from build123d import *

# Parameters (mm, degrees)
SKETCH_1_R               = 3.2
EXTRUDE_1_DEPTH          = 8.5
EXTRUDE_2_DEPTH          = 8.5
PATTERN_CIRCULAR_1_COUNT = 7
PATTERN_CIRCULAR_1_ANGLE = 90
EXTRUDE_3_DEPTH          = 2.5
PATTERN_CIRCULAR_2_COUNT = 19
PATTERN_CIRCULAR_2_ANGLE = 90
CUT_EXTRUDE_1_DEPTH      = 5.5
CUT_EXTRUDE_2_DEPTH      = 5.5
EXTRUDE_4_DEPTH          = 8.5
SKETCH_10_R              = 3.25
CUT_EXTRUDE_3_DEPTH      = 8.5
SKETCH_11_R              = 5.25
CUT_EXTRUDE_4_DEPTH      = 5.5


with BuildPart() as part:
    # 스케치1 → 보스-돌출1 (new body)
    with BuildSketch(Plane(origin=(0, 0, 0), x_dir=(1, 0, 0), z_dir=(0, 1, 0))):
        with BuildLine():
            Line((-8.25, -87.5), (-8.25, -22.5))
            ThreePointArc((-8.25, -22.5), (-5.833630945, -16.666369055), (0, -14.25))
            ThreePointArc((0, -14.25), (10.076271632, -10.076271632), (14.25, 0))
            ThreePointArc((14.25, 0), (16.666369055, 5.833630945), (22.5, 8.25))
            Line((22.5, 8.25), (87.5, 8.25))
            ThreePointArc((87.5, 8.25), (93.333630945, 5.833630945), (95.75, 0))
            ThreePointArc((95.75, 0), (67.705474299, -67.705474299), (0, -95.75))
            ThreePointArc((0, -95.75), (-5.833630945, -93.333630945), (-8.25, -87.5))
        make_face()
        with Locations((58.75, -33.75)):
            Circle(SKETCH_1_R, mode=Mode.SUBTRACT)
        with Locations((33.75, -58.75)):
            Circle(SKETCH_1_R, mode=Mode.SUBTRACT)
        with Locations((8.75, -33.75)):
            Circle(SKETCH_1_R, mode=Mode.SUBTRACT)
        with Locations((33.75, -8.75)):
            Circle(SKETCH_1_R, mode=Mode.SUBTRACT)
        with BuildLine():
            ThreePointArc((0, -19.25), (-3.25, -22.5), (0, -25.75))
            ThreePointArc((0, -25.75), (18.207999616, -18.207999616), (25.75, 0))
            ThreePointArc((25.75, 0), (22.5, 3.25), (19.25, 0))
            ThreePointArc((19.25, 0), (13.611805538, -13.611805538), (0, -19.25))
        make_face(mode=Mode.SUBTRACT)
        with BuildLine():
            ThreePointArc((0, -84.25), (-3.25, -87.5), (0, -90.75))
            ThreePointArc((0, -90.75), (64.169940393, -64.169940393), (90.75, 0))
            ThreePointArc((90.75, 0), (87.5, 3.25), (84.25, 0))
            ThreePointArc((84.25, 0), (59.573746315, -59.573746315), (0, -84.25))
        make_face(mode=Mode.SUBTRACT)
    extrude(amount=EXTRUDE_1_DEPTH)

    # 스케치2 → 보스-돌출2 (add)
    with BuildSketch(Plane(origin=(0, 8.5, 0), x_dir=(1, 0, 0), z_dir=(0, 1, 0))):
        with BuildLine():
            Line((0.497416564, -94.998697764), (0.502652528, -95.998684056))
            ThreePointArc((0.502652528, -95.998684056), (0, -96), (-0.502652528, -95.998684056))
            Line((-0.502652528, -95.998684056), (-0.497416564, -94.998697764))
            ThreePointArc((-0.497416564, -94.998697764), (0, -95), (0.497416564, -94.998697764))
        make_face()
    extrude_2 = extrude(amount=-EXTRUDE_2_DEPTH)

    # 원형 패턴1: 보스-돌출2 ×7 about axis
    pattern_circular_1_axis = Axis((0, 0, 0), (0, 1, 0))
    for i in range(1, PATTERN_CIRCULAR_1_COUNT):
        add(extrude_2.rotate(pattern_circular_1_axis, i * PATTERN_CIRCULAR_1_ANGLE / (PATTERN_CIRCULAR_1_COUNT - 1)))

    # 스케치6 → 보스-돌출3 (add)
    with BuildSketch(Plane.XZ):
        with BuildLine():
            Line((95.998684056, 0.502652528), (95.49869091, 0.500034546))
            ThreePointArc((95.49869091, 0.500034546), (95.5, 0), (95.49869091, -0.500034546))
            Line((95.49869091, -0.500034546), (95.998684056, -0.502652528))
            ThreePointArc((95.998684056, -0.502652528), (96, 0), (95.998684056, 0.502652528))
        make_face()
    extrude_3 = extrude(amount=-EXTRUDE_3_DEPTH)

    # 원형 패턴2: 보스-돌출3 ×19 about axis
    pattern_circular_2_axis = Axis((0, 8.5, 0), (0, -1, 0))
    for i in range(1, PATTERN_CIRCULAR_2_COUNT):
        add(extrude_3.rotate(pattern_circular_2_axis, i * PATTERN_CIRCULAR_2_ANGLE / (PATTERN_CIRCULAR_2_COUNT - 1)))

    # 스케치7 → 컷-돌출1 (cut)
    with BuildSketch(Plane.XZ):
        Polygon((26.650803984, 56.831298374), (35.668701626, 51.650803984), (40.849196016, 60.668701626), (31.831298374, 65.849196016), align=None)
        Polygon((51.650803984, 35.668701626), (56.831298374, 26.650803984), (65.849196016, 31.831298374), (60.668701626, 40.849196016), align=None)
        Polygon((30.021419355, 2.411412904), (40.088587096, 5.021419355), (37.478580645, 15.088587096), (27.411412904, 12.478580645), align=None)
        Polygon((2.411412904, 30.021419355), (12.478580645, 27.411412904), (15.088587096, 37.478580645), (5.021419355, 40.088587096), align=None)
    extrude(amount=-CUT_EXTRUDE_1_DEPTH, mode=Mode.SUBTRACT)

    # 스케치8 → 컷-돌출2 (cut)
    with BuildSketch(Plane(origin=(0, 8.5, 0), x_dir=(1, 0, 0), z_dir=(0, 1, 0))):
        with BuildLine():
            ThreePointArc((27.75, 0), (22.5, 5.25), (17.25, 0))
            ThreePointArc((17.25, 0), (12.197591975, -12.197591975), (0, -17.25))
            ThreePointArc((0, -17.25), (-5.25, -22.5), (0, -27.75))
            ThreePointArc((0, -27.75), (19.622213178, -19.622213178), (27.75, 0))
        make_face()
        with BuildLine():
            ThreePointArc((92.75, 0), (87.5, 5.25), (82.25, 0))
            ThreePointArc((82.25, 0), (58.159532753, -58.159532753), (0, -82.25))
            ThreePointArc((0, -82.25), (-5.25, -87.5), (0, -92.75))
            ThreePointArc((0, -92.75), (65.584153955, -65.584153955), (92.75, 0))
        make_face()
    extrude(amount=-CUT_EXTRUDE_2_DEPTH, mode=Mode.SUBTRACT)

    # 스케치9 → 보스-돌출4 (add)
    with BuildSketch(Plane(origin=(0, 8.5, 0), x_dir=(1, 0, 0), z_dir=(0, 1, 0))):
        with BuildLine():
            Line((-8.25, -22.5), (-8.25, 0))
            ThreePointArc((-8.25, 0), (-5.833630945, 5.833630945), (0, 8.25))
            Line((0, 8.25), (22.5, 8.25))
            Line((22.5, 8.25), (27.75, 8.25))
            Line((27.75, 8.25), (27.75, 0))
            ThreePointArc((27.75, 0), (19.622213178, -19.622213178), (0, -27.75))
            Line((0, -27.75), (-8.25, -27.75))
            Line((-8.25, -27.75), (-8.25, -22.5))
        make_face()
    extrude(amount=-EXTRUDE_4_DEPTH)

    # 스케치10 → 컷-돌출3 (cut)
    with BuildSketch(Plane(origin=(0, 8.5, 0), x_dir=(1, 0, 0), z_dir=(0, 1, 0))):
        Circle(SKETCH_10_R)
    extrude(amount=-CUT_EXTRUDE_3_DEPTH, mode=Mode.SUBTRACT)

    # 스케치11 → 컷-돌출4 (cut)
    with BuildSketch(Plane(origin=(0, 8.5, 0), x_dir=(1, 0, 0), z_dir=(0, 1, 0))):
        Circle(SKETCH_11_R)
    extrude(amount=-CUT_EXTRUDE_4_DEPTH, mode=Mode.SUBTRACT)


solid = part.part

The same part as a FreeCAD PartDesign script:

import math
import FreeCAD as App
import Part
import Sketcher

V = App.Vector
Q = App.Units.Quantity


def add_polygon(sketch, points):
    """Adds a closed chain of lines whose ends are joined by coincident constraints."""
    first, n = sketch.GeometryCount, len(points)
    for a, b in zip(points, points[1:] + points[:1]):
        sketch.addGeometry(Part.LineSegment(App.Vector(*a, 0), App.Vector(*b, 0)), False)
    for i in range(n):
        sketch.addConstraint(Sketcher.Constraint("Coincident", first + i, 2, first + (i + 1) % n, 1))

doc = App.newDocument("Part")
params = doc.addObject("Spreadsheet::Sheet", "Params")
for row, (alias, value) in enumerate([
    ("sketch1_diameter", "6.4 mm"),
    ("sketch1_width", "65 mm"),
    ("sketch1_radius", "8.25 mm"),
    ("sketch1_radius2", "95.75 mm"),
    ("sketch1_radius3", "84.25 mm"),
    ("pad1_length", "8.5 mm"),
    ("sketch2_length", "1 mm"),
    ("pad2_length", "8.5 mm"),
    ("sketch3_length", "0.5 mm"),
    ("pad3_length", "2.5 mm"),
    ("sketch4_length", "10.4 mm"),
    ("pocket1_length", "5.5 mm"),
    ("sketch5_radius", "5.25 mm"),
    ("sketch5_radius2", "17.25 mm"),
    ("sketch5_radius3", "82.25 mm"),
    ("pocket2_length", "5.5 mm"),
    ("sketch6_radius", "8.25 mm"),
    ("sketch6_radius2", "27.75 mm"),
    ("pad4_length", "8.5 mm"),
    ("sketch7_diameter", "6.5 mm"),
    ("pocket3_length", "8.5 mm"),
    ("sketch8_diameter", "10.5 mm"),
    ("pocket4_length", "5.5 mm"),
], start=1):
    params.set(f"A{row}", alias)
    params.set(f"B{row}", "=" + value)
    params.setAlias(f"B{row}", alias)

body = doc.addObject("PartDesign::Body", "Body")

# Sketch on XZ plane
sketch1 = body.newObject("Sketcher::SketchObject", "Sketch")
sketch1.AttachmentSupport = (doc.getObject("XZ_Plane"), [""])
sketch1.MapMode = "FlatFace"
sketch1.addGeometry(Part.LineSegment(V(-8.25, 22.5, 0), V(-8.25, 87.5, 0)), False)
sketch1.addGeometry(Part.ArcOfCircle(Part.Circle(V(0, 87.5, 0), V(0, 0, 1), 8.25), math.radians(90), math.radians(180)), False)
sketch1.addGeometry(Part.ArcOfCircle(Part.Circle(V(0, 0, 0), V(0, 0, 1), 95.75), math.radians(0), math.radians(90)), False)
sketch1.addGeometry(Part.ArcOfCircle(Part.Circle(V(87.5, 0, 0), V(0, 0, 1), 8.25), math.radians(-90), math.radians(0)), False)
sketch1.addGeometry(Part.LineSegment(V(87.5, -8.25, 0), V(22.5, -8.25, 0)), False)
sketch1.addGeometry(Part.ArcOfCircle(Part.Circle(V(22.5, 0, 0), V(0, 0, 1), 8.25), math.radians(180), math.radians(270)), False)
sketch1.addGeometry(Part.ArcOfCircle(Part.Circle(V(0, 0, 0), V(0, 0, 1), 14.25), math.radians(0), math.radians(90)), False)
sketch1.addGeometry(Part.ArcOfCircle(Part.Circle(V(0, 22.5, 0), V(0, 0, 1), 8.25), math.radians(180), math.radians(270)), False)
sketch1.addGeometry(Part.Circle(V(33.75, 58.75, 0), V(0, 0, 1), 3.2), False)
sketch1.addGeometry(Part.Circle(V(58.75, 33.75, 0), V(0, 0, 1), 3.2), False)
sketch1.addGeometry(Part.ArcOfCircle(Part.Circle(V(0, 0, 0), V(0, 0, 1), 84.25), math.radians(0), math.radians(90)), False)
sketch1.addGeometry(Part.ArcOfCircle(Part.Circle(V(87.5, 0, 0), V(0, 0, 1), 3.25), math.radians(180), math.radians(360)), False)
sketch1.addGeometry(Part.ArcOfCircle(Part.Circle(V(0, 0, 0), V(0, 0, 1), 90.75), math.radians(0), math.radians(90)), False)
sketch1.addGeometry(Part.ArcOfCircle(Part.Circle(V(0, 87.5, 0), V(0, 0, 1), 3.25), math.radians(90), math.radians(270)), False)
sketch1.addGeometry(Part.Circle(V(8.75, 33.75, 0), V(0, 0, 1), 3.2), False)
sketch1.addGeometry(Part.Circle(V(33.75, 8.75, 0), V(0, 0, 1), 3.2), False)
sketch1.addGeometry(Part.ArcOfCircle(Part.Circle(V(0, 0, 0), V(0, 0, 1), 19.25), math.radians(0), math.radians(90)), False)
sketch1.addGeometry(Part.ArcOfCircle(Part.Circle(V(22.5, 0, 0), V(0, 0, 1), 3.25), math.radians(180), math.radians(360)), False)
sketch1.addGeometry(Part.ArcOfCircle(Part.Circle(V(0, 0, 0), V(0, 0, 1), 25.75), math.radians(0), math.radians(90)), False)
sketch1.addGeometry(Part.ArcOfCircle(Part.Circle(V(0, 22.5, 0), V(0, 0, 1), 3.25), math.radians(90), math.radians(270)), False)
sketch1.addConstraint(Sketcher.Constraint("Tangent", 0, 2, 1, 2))
sketch1.addConstraint(Sketcher.Constraint("Tangent", 1, 1, 2, 2))
sketch1.addConstraint(Sketcher.Constraint("Tangent", 2, 1, 3, 2))
sketch1.addConstraint(Sketcher.Constraint("Tangent", 3, 1, 4, 1))
sketch1.addConstraint(Sketcher.Constraint("Tangent", 4, 2, 5, 2))
sketch1.addConstraint(Sketcher.Constraint("Tangent", 5, 1, 6, 1))
sketch1.addConstraint(Sketcher.Constraint("Tangent", 6, 2, 7, 2))
sketch1.addConstraint(Sketcher.Constraint("Tangent", 7, 1, 0, 1))
sketch1.addConstraint(Sketcher.Constraint("Tangent", 10, 1, 11, 1))
sketch1.addConstraint(Sketcher.Constraint("Tangent", 11, 2, 12, 1))
sketch1.addConstraint(Sketcher.Constraint("Tangent", 12, 2, 13, 1))
sketch1.addConstraint(Sketcher.Constraint("Tangent", 13, 2, 10, 2))
sketch1.addConstraint(Sketcher.Constraint("Tangent", 16, 1, 17, 1))
sketch1.addConstraint(Sketcher.Constraint("Tangent", 17, 2, 18, 1))
sketch1.addConstraint(Sketcher.Constraint("Tangent", 18, 2, 19, 1))
sketch1.addConstraint(Sketcher.Constraint("Tangent", 19, 2, 16, 2))
sketch1.addConstraint(Sketcher.Constraint("Vertical", 0))
sketch1.addConstraint(Sketcher.Constraint("Horizontal", 4))
sketch1.addConstraint(Sketcher.Constraint("Coincident", 2, 3, -1, 1))
sketch1.addConstraint(Sketcher.Constraint("Coincident", 6, 3, -1, 1))
sketch1.addConstraint(Sketcher.Constraint("Coincident", 10, 3, -1, 1))
sketch1.addConstraint(Sketcher.Constraint("Coincident", 12, 3, -1, 1))
sketch1.addConstraint(Sketcher.Constraint("Coincident", 16, 3, -1, 1))
sketch1.addConstraint(Sketcher.Constraint("Coincident", 18, 3, -1, 1))
sketch1.addConstraint(Sketcher.Constraint("Coincident", 11, 3, 3, 3))
sketch1.addConstraint(Sketcher.Constraint("Coincident", 13, 3, 1, 3))
sketch1.addConstraint(Sketcher.Constraint("Coincident", 17, 3, 5, 3))
sketch1.addConstraint(Sketcher.Constraint("Coincident", 19, 3, 7, 3))
sketch1.addConstraint(Sketcher.Constraint("Equal", 3, 5))
sketch1.addConstraint(Sketcher.Constraint("Equal", 8, 9))
sketch1.addConstraint(Sketcher.Constraint("Equal", 9, 14))
sketch1.addConstraint(Sketcher.Constraint("Equal", 14, 15))
sketch1.addConstraint(Sketcher.Constraint("Equal", 13, 17))
sketch1.addConstraint(Sketcher.Constraint("PointOnObject", 1, 3, -2))
sketch1.addConstraint(Sketcher.Constraint("PointOnObject", 3, 3, -1))
sketch1.addConstraint(Sketcher.Constraint("Horizontal", 9, 3, 14, 3))
sketch1.addConstraint(Sketcher.Constraint("Vertical", 8, 3, 15, 3))
sketch1.addConstraint(Sketcher.Constraint("Diameter", 8, Q("6.4 mm")))
sketch1.addConstraint(Sketcher.Constraint("DistanceX", 4, 2, 4, 1, Q("65 mm")))
sketch1.addConstraint(Sketcher.Constraint("Radius", 1, Q("8.25 mm")))
sketch1.addConstraint(Sketcher.Constraint("Radius", 2, Q("95.75 mm")))
sketch1.addConstraint(Sketcher.Constraint("Radius", 10, Q("84.25 mm")))
sketch1.addConstraint(Sketcher.Constraint("DistanceX", 8, 3, 9, 3, Q("25 mm")))
sketch1.addConstraint(Sketcher.Constraint("DistanceY", 9, 3, 8, 3, Q("25 mm")))
sketch1.addConstraint(Sketcher.Constraint("DistanceX", 0, 2, 8, 3, Q("42 mm")))
sketch1.addConstraint(Sketcher.Constraint("DistanceX", 0, 2, 14, 3, Q("17 mm")))
sketch1.addConstraint(Sketcher.Constraint("DistanceY", 8, 3, 1, 1, Q("37 mm")))
sketch1.addConstraint(Sketcher.Constraint("DistanceY", 3, 1, 15, 3, Q("17 mm")))
sketch1.setExpression("Constraints[37]", "Params.sketch1_diameter")
sketch1.setExpression("Constraints[38]", "Params.sketch1_width")
sketch1.setExpression("Constraints[39]", "Params.sketch1_radius")
sketch1.setExpression("Constraints[40]", "Params.sketch1_radius2")
sketch1.setExpression("Constraints[41]", "Params.sketch1_radius3")
pad1 = body.newObject("PartDesign::Pad", "Pad")
pad1.Profile = sketch1
pad1.setExpression("Length", "Params.pad1_length")
pad1.Reversed = True

# Sketch on XZ plane
sketch2 = body.newObject("Sketcher::SketchObject", "Sketch001")
sketch2.AttachmentSupport = (doc.getObject("XZ_Plane"), [""])
sketch2.MapMode = "FlatFace"
sketch2.AttachmentOffset = App.Placement(V(0, 0, -8.5), App.Rotation())
sketch2.addGeometry(Part.LineSegment(V(0.502653, 95.998684, 0), V(0.497417, 94.998698, 0)), False)
sketch2.addGeometry(Part.ArcOfCircle(Part.Circle(V(0, -0.000036, 0), V(0, 0, 1), 95.000036), math.radians(89.7), math.radians(90.3)), False)
sketch2.addGeometry(Part.LineSegment(V(-0.497417, 94.998698, 0), V(-0.502653, 95.998684, 0)), False)
sketch2.addGeometry(Part.ArcOfCircle(Part.Circle(V(0, -0.000018, 0), V(0, 0, 1), 96.000018), math.radians(89.7), math.radians(90.3)), False)
sketch2.addConstraint(Sketcher.Constraint("Coincident", 0, 2, 1, 1))
sketch2.addConstraint(Sketcher.Constraint("Coincident", 1, 2, 2, 1))
sketch2.addConstraint(Sketcher.Constraint("Coincident", 2, 2, 3, 2))
sketch2.addConstraint(Sketcher.Constraint("Coincident", 3, 1, 0, 1))
sketch2.addConstraint(Sketcher.Constraint("Symmetric", 0, 2, 1, 2, -2))
sketch2.addConstraint(Sketcher.Constraint("Symmetric", 2, 2, 3, 1, -2))
sketch2.addConstraint(Sketcher.Constraint("Distance", 0, Q("1 mm")))
sketch2.addConstraint(Sketcher.Constraint("Angle", 0, Q("-90.3 deg")))
sketch2.addConstraint(Sketcher.Constraint("Radius", 3, Q("96.000018 mm")))
sketch2.addConstraint(Sketcher.Constraint("Radius", 1, Q("95.000036 mm")))
sketch2.addConstraint(Sketcher.Constraint("DistanceX", 2, 2, 0, 2, Q("1.000069 mm")))
sketch2.addConstraint(Sketcher.Constraint("DistanceY", -1, 1, 0, 2, Q("94.998698 mm")))
sketch2.setExpression("Constraints[6]", "Params.sketch2_length")
pad2 = body.newObject("PartDesign::Pad", "Pad001")
pad2.Profile = sketch2
pad2.setExpression("Length", "Params.pad2_length")
doc.recompute()

polarpattern = body.newObject("PartDesign::PolarPattern", "PolarPattern")
polarpattern.Originals = [pad2]
polarpattern.Axis = (doc.getObject("Y_Axis"), [""])
polarpattern.Angle = 90
polarpattern.Occurrences = 7
body.Tip = polarpattern

# Sketch on XZ plane
sketch3 = body.newObject("Sketcher::SketchObject", "Sketch002")
sketch3.AttachmentSupport = (doc.getObject("XZ_Plane"), [""])
sketch3.MapMode = "FlatFace"
sketch3.addGeometry(Part.LineSegment(V(95.998684, 0.502653, 0), V(95.498691, 0.500035, 0)), False)
sketch3.addGeometry(Part.ArcOfCircle(Part.Circle(V(-0.000027, 0, 0), V(0, 0, 1), 95.500027), math.radians(-0.3), math.radians(0.3)), False)
sketch3.addGeometry(Part.LineSegment(V(95.498691, -0.500035, 0), V(95.998684, -0.502653, 0)), False)
sketch3.addGeometry(Part.ArcOfCircle(Part.Circle(V(-0.000018, 0, 0), V(0, 0, 1), 96.000018), math.radians(-0.3), math.radians(0.3)), False)
sketch3.addConstraint(Sketcher.Constraint("Coincident", 0, 2, 1, 2))
sketch3.addConstraint(Sketcher.Constraint("Coincident", 1, 1, 2, 1))
sketch3.addConstraint(Sketcher.Constraint("Coincident", 2, 2, 3, 1))
sketch3.addConstraint(Sketcher.Constraint("Coincident", 3, 2, 0, 1))
sketch3.addConstraint(Sketcher.Constraint("Coincident", 3, 3, 1, 3))
sketch3.addConstraint(Sketcher.Constraint("Symmetric", 0, 2, 1, 1, -1))
sketch3.addConstraint(Sketcher.Constraint("Vertical", 2, 2, 3, 2))
sketch3.addConstraint(Sketcher.Constraint("Angle", 0, Q("-179.7 deg")))
sketch3.addConstraint(Sketcher.Constraint("Distance", 0, Q("0.5 mm")))
sketch3.addConstraint(Sketcher.Constraint("Radius", 3, Q("96.000018 mm")))
sketch3.addConstraint(Sketcher.Constraint("DistanceX", -1, 1, 0, 2, Q("95.498691 mm")))
sketch3.addConstraint(Sketcher.Constraint("DistanceY", 1, 1, 0, 2, Q("1.000069 mm")))
sketch3.setExpression("Constraints[8]", "Params.sketch3_length")
pad3 = body.newObject("PartDesign::Pad", "Pad002")
pad3.Profile = sketch3
pad3.setExpression("Length", "Params.pad3_length")
pad3.Reversed = True
doc.recompute()

polarpattern2 = body.newObject("PartDesign::PolarPattern", "PolarPattern001")
polarpattern2.Originals = [pad3]
polarpattern2.Axis = (doc.getObject("Y_Axis"), [""])
polarpattern2.Angle = 90
polarpattern2.Occurrences = 19
polarpattern2.Reversed = True
body.Tip = polarpattern2

# Sketch on XZ plane
sketch4 = body.newObject("Sketcher::SketchObject", "Sketch003")
sketch4.AttachmentSupport = (doc.getObject("XZ_Plane"), [""])
sketch4.MapMode = "FlatFace"
add_polygon(sketch4, [(26.650804, 56.831298), (35.668702, 51.650804), (40.849196, 60.668702), (31.831298, 65.849196)])  # lines 0-3
add_polygon(sketch4, [(51.650804, 35.668702), (56.831298, 26.650804), (65.849196, 31.831298), (60.668702, 40.849196)])  # lines 4-7
add_polygon(sketch4, [(30.021419, 2.411413), (40.088587, 5.021419), (37.478581, 15.088587), (27.411413, 12.478581)])  # lines 8-11
add_polygon(sketch4, [(2.411413, 30.021419), (12.478581, 27.411413), (15.088587, 37.478581), (5.021419, 40.088587)])  # lines 12-15
sketch4.addConstraint(Sketcher.Constraint("Perpendicular", 0, 1))
sketch4.addConstraint(Sketcher.Constraint("Perpendicular", 1, 2))
sketch4.addConstraint(Sketcher.Constraint("Perpendicular", 2, 3))
sketch4.addConstraint(Sketcher.Constraint("Perpendicular", 4, 5))
sketch4.addConstraint(Sketcher.Constraint("Perpendicular", 5, 6))
sketch4.addConstraint(Sketcher.Constraint("Perpendicular", 6, 7))
sketch4.addConstraint(Sketcher.Constraint("Perpendicular", 8, 9))
sketch4.addConstraint(Sketcher.Constraint("Perpendicular", 9, 10))
sketch4.addConstraint(Sketcher.Constraint("Perpendicular", 10, 11))
sketch4.addConstraint(Sketcher.Constraint("Perpendicular", 12, 13))
sketch4.addConstraint(Sketcher.Constraint("Perpendicular", 13, 14))
sketch4.addConstraint(Sketcher.Constraint("Perpendicular", 14, 15))
sketch4.addConstraint(Sketcher.Constraint("Equal", 0, 1))
sketch4.addConstraint(Sketcher.Constraint("Equal", 3, 4))
sketch4.addConstraint(Sketcher.Constraint("Equal", 4, 5))
sketch4.addConstraint(Sketcher.Constraint("Equal", 7, 8))
sketch4.addConstraint(Sketcher.Constraint("Equal", 8, 9))
sketch4.addConstraint(Sketcher.Constraint("Equal", 11, 12))
sketch4.addConstraint(Sketcher.Constraint("Equal", 12, 13))
sketch4.addConstraint(Sketcher.Constraint("DistanceY", 4, 2, 0, 2, Q("25 mm")))
sketch4.addConstraint(Sketcher.Constraint("DistanceX", 2, 2, 4, 2, Q("25 mm")))
sketch4.addConstraint(Sketcher.Constraint("DistanceX", 1, 2, 5, 2, Q("25 mm")))
sketch4.addConstraint(Sketcher.Constraint("DistanceX", 12, 2, 9, 2, Q("25 mm")))
sketch4.addConstraint(Sketcher.Constraint("DistanceY", 11, 2, 12, 2, Q("25 mm")))
sketch4.addConstraint(Sketcher.Constraint("DistanceY", 10, 2, 13, 2, Q("25 mm")))
sketch4.addConstraint(Sketcher.Constraint("Distance", 0, Q("10.4 mm")))
sketch4.addConstraint(Sketcher.Constraint("DistanceX", -1, 1, 0, 2, Q("35.668702 mm")))
sketch4.addConstraint(Sketcher.Constraint("DistanceY", -1, 1, 1, 2, Q("60.668702 mm")))
sketch4.addConstraint(Sketcher.Constraint("DistanceX", -1, 1, 2, 2, Q("31.831298 mm")))
sketch4.addConstraint(Sketcher.Constraint("DistanceY", -1, 1, 8, 2, Q("5.021419 mm")))
sketch4.addConstraint(Sketcher.Constraint("DistanceX", -1, 1, 9, 2, Q("37.478581 mm")))
sketch4.addConstraint(Sketcher.Constraint("DistanceY", -1, 1, 10, 2, Q("12.478581 mm")))
sketch4.setExpression("Constraints[41]", "Params.sketch4_length")
pocket1 = body.newObject("PartDesign::Pocket", "Pocket")
pocket1.Profile = sketch4
pocket1.setExpression("Length", "Params.pocket1_length")

# Sketch on XZ plane
sketch5 = body.newObject("Sketcher::SketchObject", "Sketch004")
sketch5.AttachmentSupport = (doc.getObject("XZ_Plane"), [""])
sketch5.MapMode = "FlatFace"
sketch5.AttachmentOffset = App.Placement(V(0, 0, -8.5), App.Rotation())
sketch5.addGeometry(Part.ArcOfCircle(Part.Circle(V(22.5, 0, 0), V(0, 0, 1), 5.25), math.radians(180), math.radians(360)), False)
sketch5.addGeometry(Part.ArcOfCircle(Part.Circle(V(0, 0, 0), V(0, 0, 1), 17.25), math.radians(0), math.radians(90)), False)
sketch5.addGeometry(Part.ArcOfCircle(Part.Circle(V(0, 22.5, 0), V(0, 0, 1), 5.25), math.radians(90), math.radians(270)), False)
sketch5.addGeometry(Part.ArcOfCircle(Part.Circle(V(0, 0, 0), V(0, 0, 1), 27.75), math.radians(0), math.radians(90)), False)
sketch5.addGeometry(Part.ArcOfCircle(Part.Circle(V(87.5, 0, 0), V(0, 0, 1), 5.25), math.radians(180), math.radians(360)), False)
sketch5.addGeometry(Part.ArcOfCircle(Part.Circle(V(0, 0, 0), V(0, 0, 1), 82.25), math.radians(0), math.radians(90)), False)
sketch5.addGeometry(Part.ArcOfCircle(Part.Circle(V(0, 87.5, 0), V(0, 0, 1), 5.25), math.radians(90), math.radians(270)), False)
sketch5.addGeometry(Part.ArcOfCircle(Part.Circle(V(0, 0, 0), V(0, 0, 1), 92.75), math.radians(0), math.radians(90)), False)
sketch5.addConstraint(Sketcher.Constraint("Tangent", 0, 1, 1, 1))
sketch5.addConstraint(Sketcher.Constraint("Tangent", 1, 2, 2, 2))
sketch5.addConstraint(Sketcher.Constraint("Tangent", 2, 1, 3, 2))
sketch5.addConstraint(Sketcher.Constraint("Tangent", 3, 1, 0, 2))
sketch5.addConstraint(Sketcher.Constraint("Tangent", 4, 1, 5, 1))
sketch5.addConstraint(Sketcher.Constraint("Tangent", 5, 2, 6, 2))
sketch5.addConstraint(Sketcher.Constraint("Tangent", 6, 1, 7, 2))
sketch5.addConstraint(Sketcher.Constraint("Tangent", 7, 1, 4, 2))
sketch5.addConstraint(Sketcher.Constraint("Coincident", 1, 3, -1, 1))
sketch5.addConstraint(Sketcher.Constraint("Coincident", 3, 3, -1, 1))
sketch5.addConstraint(Sketcher.Constraint("Coincident", 5, 3, -1, 1))
sketch5.addConstraint(Sketcher.Constraint("Coincident", 7, 3, -1, 1))
sketch5.addConstraint(Sketcher.Constraint("Equal", 2, 4))
sketch5.addConstraint(Sketcher.Constraint("PointOnObject", 0, 3, -1))
sketch5.addConstraint(Sketcher.Constraint("PointOnObject", 2, 3, -2))
sketch5.addConstraint(Sketcher.Constraint("PointOnObject", 4, 3, -1))
sketch5.addConstraint(Sketcher.Constraint("PointOnObject", 6, 3, -2))
sketch5.addConstraint(Sketcher.Constraint("Radius", 0, Q("5.25 mm")))
sketch5.addConstraint(Sketcher.Constraint("Radius", 1, Q("17.25 mm")))
sketch5.addConstraint(Sketcher.Constraint("Radius", 5, Q("82.25 mm")))
sketch5.setExpression("Constraints[17]", "Params.sketch5_radius")
sketch5.setExpression("Constraints[18]", "Params.sketch5_radius2")
sketch5.setExpression("Constraints[19]", "Params.sketch5_radius3")
pocket2 = body.newObject("PartDesign::Pocket", "Pocket001")
pocket2.Profile = sketch5
pocket2.setExpression("Length", "Params.pocket2_length")
pocket2.Reversed = True

# Sketch on XZ plane
sketch6 = body.newObject("Sketcher::SketchObject", "Sketch005")
sketch6.AttachmentSupport = (doc.getObject("XZ_Plane"), [""])
sketch6.MapMode = "FlatFace"
sketch6.AttachmentOffset = App.Placement(V(0, 0, -8.5), App.Rotation())
sketch6.addGeometry(Part.ArcOfCircle(Part.Circle(V(0, 0, 0), V(0, 0, 1), 8.25), math.radians(180), math.radians(270)), False)
sketch6.addGeometry(Part.LineSegment(V(-8.25, 0, 0), V(-8.25, 27.75, 0)), False)
sketch6.addGeometry(Part.LineSegment(V(-8.25, 27.75, 0), V(0, 27.75, 0)), False)
sketch6.addGeometry(Part.ArcOfCircle(Part.Circle(V(0, 0, 0), V(0, 0, 1), 27.75), math.radians(0), math.radians(90)), False)
sketch6.addGeometry(Part.LineSegment(V(27.75, 0, 0), V(27.75, -8.25, 0)), False)
sketch6.addGeometry(Part.LineSegment(V(27.75, -8.25, 0), V(0, -8.25, 0)), False)
sketch6.addConstraint(Sketcher.Constraint("Tangent", 0, 1, 1, 1))
sketch6.addConstraint(Sketcher.Constraint("Coincident", 1, 2, 2, 1))
sketch6.addConstraint(Sketcher.Constraint("Tangent", 2, 2, 3, 2))
sketch6.addConstraint(Sketcher.Constraint("Tangent", 3, 1, 4, 1))
sketch6.addConstraint(Sketcher.Constraint("Coincident", 4, 2, 5, 1))
sketch6.addConstraint(Sketcher.Constraint("Tangent", 5, 2, 0, 2))
sketch6.addConstraint(Sketcher.Constraint("Vertical", 1))
sketch6.addConstraint(Sketcher.Constraint("Horizontal", 2))
sketch6.addConstraint(Sketcher.Constraint("Vertical", 4))
sketch6.addConstraint(Sketcher.Constraint("Horizontal", 5))
sketch6.addConstraint(Sketcher.Constraint("Coincident", 0, 3, -1, 1))
sketch6.addConstraint(Sketcher.Constraint("Coincident", 3, 3, -1, 1))
sketch6.addConstraint(Sketcher.Constraint("Radius", 0, Q("8.25 mm")))
sketch6.addConstraint(Sketcher.Constraint("Radius", 3, Q("27.75 mm")))
sketch6.setExpression("Constraints[12]", "Params.sketch6_radius")
sketch6.setExpression("Constraints[13]", "Params.sketch6_radius2")
pad4 = body.newObject("PartDesign::Pad", "Pad003")
pad4.Profile = sketch6
pad4.setExpression("Length", "Params.pad4_length")

# Sketch on XZ plane
sketch7 = body.newObject("Sketcher::SketchObject", "Sketch006")
sketch7.AttachmentSupport = (doc.getObject("XZ_Plane"), [""])
sketch7.MapMode = "FlatFace"
sketch7.AttachmentOffset = App.Placement(V(0, 0, -8.5), App.Rotation())
sketch7.addGeometry(Part.Circle(V(0, 0, 0), V(0, 0, 1), 3.25), False)
sketch7.addConstraint(Sketcher.Constraint("Coincident", 0, 3, -1, 1))
sketch7.addConstraint(Sketcher.Constraint("Diameter", 0, Q("6.5 mm")))
sketch7.setExpression("Constraints[1]", "Params.sketch7_diameter")
pocket3 = body.newObject("PartDesign::Pocket", "Pocket002")
pocket3.Profile = sketch7
pocket3.setExpression("Length", "Params.pocket3_length")
pocket3.Reversed = True

# Sketch on XZ plane
sketch8 = body.newObject("Sketcher::SketchObject", "Sketch007")
sketch8.AttachmentSupport = (doc.getObject("XZ_Plane"), [""])
sketch8.MapMode = "FlatFace"
sketch8.AttachmentOffset = App.Placement(V(0, 0, -8.5), App.Rotation())
sketch8.addGeometry(Part.Circle(V(0, 0, 0), V(0, 0, 1), 5.25), False)
sketch8.addConstraint(Sketcher.Constraint("Coincident", 0, 3, -1, 1))
sketch8.addConstraint(Sketcher.Constraint("Diameter", 0, Q("10.5 mm")))
sketch8.setExpression("Constraints[1]", "Params.sketch8_diameter")
pocket4 = body.newObject("PartDesign::Pocket", "Pocket003")
pocket4.Profile = sketch8
pocket4.setExpression("Length", "Params.pocket4_length")
pocket4.Reversed = True

doc.recompute()
